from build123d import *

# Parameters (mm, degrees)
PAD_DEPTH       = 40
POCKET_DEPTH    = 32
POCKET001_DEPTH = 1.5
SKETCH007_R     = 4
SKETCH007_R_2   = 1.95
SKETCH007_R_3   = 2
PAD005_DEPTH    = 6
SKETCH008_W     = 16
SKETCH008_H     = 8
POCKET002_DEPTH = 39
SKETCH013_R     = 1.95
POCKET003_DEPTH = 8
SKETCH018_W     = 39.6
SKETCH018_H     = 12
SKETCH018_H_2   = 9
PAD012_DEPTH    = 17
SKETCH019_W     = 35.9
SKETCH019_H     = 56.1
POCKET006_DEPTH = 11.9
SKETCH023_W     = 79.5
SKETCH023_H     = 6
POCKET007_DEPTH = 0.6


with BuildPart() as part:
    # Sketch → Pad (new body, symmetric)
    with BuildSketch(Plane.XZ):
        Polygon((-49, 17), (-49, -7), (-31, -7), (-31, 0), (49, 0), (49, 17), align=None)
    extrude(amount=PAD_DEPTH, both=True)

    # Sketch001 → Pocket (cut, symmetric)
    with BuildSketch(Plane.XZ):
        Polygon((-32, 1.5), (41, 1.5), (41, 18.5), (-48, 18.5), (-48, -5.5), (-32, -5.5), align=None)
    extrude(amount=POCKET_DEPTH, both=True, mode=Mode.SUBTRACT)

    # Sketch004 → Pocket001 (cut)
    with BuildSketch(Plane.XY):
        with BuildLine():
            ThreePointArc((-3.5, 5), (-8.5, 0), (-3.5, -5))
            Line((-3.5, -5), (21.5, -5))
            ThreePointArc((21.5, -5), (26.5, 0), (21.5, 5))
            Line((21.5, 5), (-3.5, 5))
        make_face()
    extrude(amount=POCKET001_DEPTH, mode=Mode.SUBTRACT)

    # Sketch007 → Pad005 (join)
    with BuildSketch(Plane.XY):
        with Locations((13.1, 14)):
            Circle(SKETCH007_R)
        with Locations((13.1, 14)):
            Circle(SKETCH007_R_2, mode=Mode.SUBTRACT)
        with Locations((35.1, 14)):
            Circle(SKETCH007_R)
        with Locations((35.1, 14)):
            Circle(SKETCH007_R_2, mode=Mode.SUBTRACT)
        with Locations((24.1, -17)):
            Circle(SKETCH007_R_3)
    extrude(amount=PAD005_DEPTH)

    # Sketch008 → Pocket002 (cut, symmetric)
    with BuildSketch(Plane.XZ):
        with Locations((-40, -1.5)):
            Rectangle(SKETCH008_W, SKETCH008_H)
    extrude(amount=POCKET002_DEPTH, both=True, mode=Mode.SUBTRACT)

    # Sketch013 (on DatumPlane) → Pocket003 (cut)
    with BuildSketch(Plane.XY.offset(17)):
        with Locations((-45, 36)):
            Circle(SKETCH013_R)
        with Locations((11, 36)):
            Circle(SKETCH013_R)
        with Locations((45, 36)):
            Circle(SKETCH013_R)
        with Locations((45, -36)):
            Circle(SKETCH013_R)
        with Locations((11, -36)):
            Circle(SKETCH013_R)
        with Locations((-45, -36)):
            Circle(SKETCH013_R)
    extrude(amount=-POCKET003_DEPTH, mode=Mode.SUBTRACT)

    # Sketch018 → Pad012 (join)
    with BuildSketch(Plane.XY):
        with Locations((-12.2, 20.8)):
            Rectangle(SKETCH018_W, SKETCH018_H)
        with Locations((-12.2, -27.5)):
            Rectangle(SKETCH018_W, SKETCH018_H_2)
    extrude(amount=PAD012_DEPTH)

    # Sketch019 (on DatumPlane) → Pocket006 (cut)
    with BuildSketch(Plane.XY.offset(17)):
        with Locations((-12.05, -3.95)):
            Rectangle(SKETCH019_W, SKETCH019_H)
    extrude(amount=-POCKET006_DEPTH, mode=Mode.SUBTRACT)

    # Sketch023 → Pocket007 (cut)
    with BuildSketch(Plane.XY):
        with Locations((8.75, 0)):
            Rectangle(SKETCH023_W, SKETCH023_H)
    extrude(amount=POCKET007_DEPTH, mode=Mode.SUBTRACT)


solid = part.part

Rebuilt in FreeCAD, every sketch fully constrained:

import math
import FreeCAD as App
import Part
import Sketcher

doc = App.newDocument("Part")
body = doc.addObject("PartDesign::Body", "Body")

sketch1 = doc.addObject("Sketcher::SketchObject", "Sketch")
body.addObject(sketch1)
sketch1.AttachmentSupport = (doc.XZ_Plane, [""])
sketch1.MapMode = "FlatFace"
sketch1.addGeometry([
    Part.LineSegment(App.Vector(-49, 17, 0), App.Vector(-49, -7, 0)),
    Part.LineSegment(App.Vector(-49, -7, 0), App.Vector(-31, -7, 0)),
    Part.LineSegment(App.Vector(-31, -7, 0), App.Vector(-31, 0, 0)),
    Part.LineSegment(App.Vector(-31, 0, 0), App.Vector(49, 0, 0)),
    Part.LineSegment(App.Vector(49, 0, 0), App.Vector(49, 17, 0)),
    Part.LineSegment(App.Vector(49, 17, 0), App.Vector(-49, 17, 0)),
], False)
sketch1.addConstraint([
    Sketcher.Constraint("Coincident", 0, 2, 1, 1),
    Sketcher.Constraint("Coincident", 1, 2, 2, 1),
    Sketcher.Constraint("Coincident", 2, 2, 3, 1),
    Sketcher.Constraint("Coincident", 3, 2, 4, 1),
    Sketcher.Constraint("Coincident", 4, 2, 5, 1),
    Sketcher.Constraint("Coincident", 5, 2, 0, 1),
    Sketcher.Constraint("Vertical", 0),
    Sketcher.Constraint("Horizontal", 1),
    Sketcher.Constraint("Vertical", 2),
    Sketcher.Constraint("Horizontal", 3),
    Sketcher.Constraint("Vertical", 4),
    Sketcher.Constraint("Horizontal", 5),
    Sketcher.Constraint("PointOnObject", 2, 2, -1),
    Sketcher.Constraint("DistanceX", 1, 1, 1, 2, 18.0),
    Sketcher.Constraint("DistanceX", 3, 1, 3, 2, 80.0),
    Sketcher.Constraint("DistanceY", 0, 2, 0, 1, 24.0),
    Sketcher.Constraint("DistanceY", 2, 1, 2, 2, 7.0),
    Sketcher.Constraint("DistanceX", 0, 2, -1, 1, 49.0),
])
pad1 = doc.addObject("PartDesign::Pad", "Pad")
body.addObject(pad1)
pad1.Profile = sketch1
pad1.Length = 80
pad1.Midplane = True

sketch2 = doc.addObject("Sketcher::SketchObject", "Sketch001")
body.addObject(sketch2)
sketch2.AttachmentSupport = (doc.XZ_Plane, [""])
sketch2.MapMode = "FlatFace"
sketch2.addGeometry([
    Part.LineSegment(App.Vector(-32, 2, 0), App.Vector(41, 2, 0)),
    Part.LineSegment(App.Vector(41, 2, 0), App.Vector(41, 18, 0)),
    Part.LineSegment(App.Vector(41, 18, 0), App.Vector(-48, 18, 0)),
    Part.LineSegment(App.Vector(-48, 18, 0), App.Vector(-48, -6, 0)),
    Part.LineSegment(App.Vector(-48, -6, 0), App.Vector(-32, -6, 0)),
    Part.LineSegment(App.Vector(-32, -6, 0), App.Vector(-32, 2, 0)),
], False)
sketch2.addConstraint([
    Sketcher.Constraint("Coincident", 0, 2, 1, 1),
    Sketcher.Constraint("Coincident", 1, 2, 2, 1),
    Sketcher.Constraint("Coincident", 2, 2, 3, 1),
    Sketcher.Constraint("Coincident", 3, 2, 4, 1),
    Sketcher.Constraint("Coincident", 4, 2, 5, 1),
    Sketcher.Constraint("Coincident", 5, 2, 0, 1),
    Sketcher.Constraint("Horizontal", 0),
    Sketcher.Constraint("Vertical", 1),
    Sketcher.Constraint("Horizontal", 2),
    Sketcher.Constraint("Vertical", 3),
    Sketcher.Constraint("Horizontal", 4),
    Sketcher.Constraint("Vertical", 5),
    Sketcher.Constraint("DistanceX", 0, 1, 0, 2, 73.0),
    Sketcher.Constraint("DistanceX", 2, 2, 2, 1, 89.0),
    Sketcher.Constraint("DistanceY", 1, 1, 1, 2, 17.0),
    Sketcher.Constraint("DistanceY", 3, 2, 3, 1, 24.0),
    Sketcher.Constraint("DistanceX", -1, 1, 0, 2, 41.0),
    Sketcher.Constraint("DistanceY", -1, 1, 0, 2, 1.5),
])
pocket1 = doc.addObject("PartDesign::Pocket", "Pocket")
body.addObject(pocket1)
pocket1.Profile = sketch2
pocket1.Length = 64
pocket1.Midplane = True

sketch3 = doc.addObject("Sketcher::SketchObject", "Sketch002")
body.addObject(sketch3)
sketch3.AttachmentSupport = (doc.XY_Plane, [""])
sketch3.MapMode = "FlatFace"
sketch3.addGeometry([
    Part.ArcOfCircle(Part.Circle(App.Vector(-4, 0, 0), App.Vector(0, 0, 1), 5), math.radians(90), math.radians(270)),
    Part.LineSegment(App.Vector(-4, -5, 0), App.Vector(22, -5, 0)),
    Part.ArcOfCircle(Part.Circle(App.Vector(22, 0, 0), App.Vector(0, 0, 1), 5), math.radians(-90), math.radians(90)),
    Part.LineSegment(App.Vector(22, 5, 0), App.Vector(-4, 5, 0)),
], False)
sketch3.addConstraint([
    Sketcher.Constraint("Tangent", 0, 2, 1, 1),
    Sketcher.Constraint("Tangent", 1, 2, 2, 1),
    Sketcher.Constraint("Tangent", 2, 2, 3, 1),
    Sketcher.Constraint("Tangent", 3, 2, 0, 1),
    Sketcher.Constraint("Horizontal", 1),
    Sketcher.Constraint("Horizontal", 3),
    Sketcher.Constraint("PointOnObject", 0, 3, -1),
    Sketcher.Constraint("Radius", 0, 5.0),
    Sketcher.Constraint("DistanceX", 1, 1, 1, 2, 25.0),
    Sketcher.Constraint("DistanceX", 0, 3, -1, 1, 3.5),
])
pocket2 = doc.addObject("PartDesign::Pocket", "Pocket001")
body.addObject(pocket2)
pocket2.Profile = sketch3
pocket2.Length = 1.5
pocket2.Reversed = True

sketch4 = doc.addObject("Sketcher::SketchObject", "Sketch003")
body.addObject(sketch4)
sketch4.AttachmentSupport = (doc.XY_Plane, [""])
sketch4.MapMode = "FlatFace"
sketch4.addGeometry([
    Part.Circle(App.Vector(13.1, 14, 0), App.Vector(0, 0, 1), 4),
    Part.Circle(App.Vector(13.1, 14, 0), App.Vector(0, 0, 1), 1.9),
    Part.Circle(App.Vector(35.1, 14, 0), App.Vector(0, 0, 1), 4),
    Part.Circle(App.Vector(35.1, 14, 0), App.Vector(0, 0, 1), 1.9),
    Part.Circle(App.Vector(24.1, -17, 0), App.Vector(0, 0, 1), 2),
], False)
sketch4.addConstraint([
    Sketcher.Constraint("Coincident", 1, 3, 0, 3),
    Sketcher.Constraint("Coincident", 3, 3, 2, 3),
    Sketcher.Constraint("Equal", 0, 2),
    Sketcher.Constraint("Equal", 1, 3),
    Sketcher.Constraint("Horizontal", 1, 3, 2, 3),
    Sketcher.Constraint("Diameter", 0, 8.0),
    Sketcher.Constraint("Diameter", 4, 4.0),
    Sketcher.Constraint("Diameter", 1, 3.9),
    Sketcher.Constraint("DistanceY", -1, 1, 0, 3, 14.0),
    Sketcher.Constraint("DistanceY", 4, 3, -1, 1, 17.0),
    Sketcher.Constraint("DistanceX", 0, 3, 2, 3, 22.0),
    Sketcher.Constraint("DistanceX", 4, 3, 2, 3, 11.0),
    Sketcher.Constraint("DistanceX", -1, 1, 0, 3, 13.1),
])
pad2 = doc.addObject("PartDesign::Pad", "Pad001")
body.addObject(pad2)
pad2.Profile = sketch4
pad2.Length = 6

sketch5 = doc.addObject("Sketcher::SketchObject", "Sketch004")
body.addObject(sketch5)
sketch5.AttachmentSupport = (doc.XZ_Plane, [""])
sketch5.MapMode = "FlatFace"
sketch5.addGeometry([
    Part.LineSegment(App.Vector(-48, 2, 0), App.Vector(-48, -6, 0)),
    Part.LineSegment(App.Vector(-48, -6, 0), App.Vector(-32, -6, 0)),
    Part.LineSegment(App.Vector(-32, -6, 0), App.Vector(-32, 2, 0)),
    Part.LineSegment(App.Vector(-32, 2, 0), App.Vector(-48, 2, 0)),
], False)
sketch5.addConstraint([
    Sketcher.Constraint("Coincident", 0, 2, 1, 1),
    Sketcher.Constraint("Coincident", 1, 2, 2, 1),
    Sketcher.Constraint("Coincident", 2, 2, 3, 1),
    Sketcher.Constraint("Coincident", 3, 2, 0, 1),
    Sketcher.Constraint("Vertical", 0),
    Sketcher.Constraint("Horizontal", 1),
    Sketcher.Constraint("Vertical", 2),
    Sketcher.Constraint("Horizontal", 3),
    Sketcher.Constraint("DistanceX", 1, 1, 1, 2, 16.0),
    Sketcher.Constraint("DistanceY", 0, 2, 0, 1, 8.0),
    Sketcher.Constraint("DistanceX", 0, 2, -1, 1, 48.0),
    Sketcher.Constraint("DistanceY", 0, 2, -1, 1, 5.5),
])
pocket3 = doc.addObject("PartDesign::Pocket", "Pocket002")
body.addObject(pocket3)
pocket3.Profile = sketch5
pocket3.Length = 78
pocket3.Midplane = True

sketch6 = doc.addObject("Sketcher::SketchObject", "Sketch005")
body.addObject(sketch6)
sketch6.AttachmentSupport = (doc.XY_Plane, [""])
sketch6.MapMode = "FlatFace"
sketch6.AttachmentOffset = App.Placement(App.Vector(0, 0, 17), App.Rotation())
sketch6.addGeometry([
    Part.Circle(App.Vector(-45, 36, 0), App.Vector(0, 0, 1), 1.9),
    Part.Circle(App.Vector(11, 36, 0), App.Vector(0, 0, 1), 1.9),
    Part.Circle(App.Vector(45, 36, 0), App.Vector(0, 0, 1), 1.9),
    Part.Circle(App.Vector(45, -36, 0), App.Vector(0, 0, 1), 1.9),
    Part.Circle(App.Vector(11, -36, 0), App.Vector(0, 0, 1), 1.9),
    Part.Circle(App.Vector(-45, -36, 0), App.Vector(0, 0, 1), 1.9),
], False)
sketch6.addConstraint([
    Sketcher.Constraint("Equal", 0, 1),
    Sketcher.Constraint("Equal", 1, 2),
    Sketcher.Constraint("Equal", 2, 3),
    Sketcher.Constraint("Equal", 3, 4),
    Sketcher.Constraint("Equal", 4, 5),
    Sketcher.Constraint("Symmetric", 0, 3, 3, 3, -1, 1),
    Sketcher.Constraint("Symmetric", 2, 3, 5, 3, -1, 1),
    Sketcher.Constraint("Symmetric", 0, 3, 2, 3, -2),
    Sketcher.Constraint("Symmetric", 1, 3, 4, 3, -1),
    Sketcher.Constraint("Horizontal", 0, 3, 1, 3),
    Sketcher.Constraint("Diameter", 0, 3.9),
    Sketcher.Constraint("DistanceX", 0, 3, -1, 1, 45.0),
    Sketcher.Constraint("DistanceY", -1, 1, 0, 3, 36.0),
    Sketcher.Constraint("DistanceX", -1, 1, 1, 3, 11.0),
])
pocket4 = doc.addObject("PartDesign::Pocket", "Pocket003")
body.addObject(pocket4)
pocket4.Profile = sketch6
pocket4.Length = 8

sketch7 = doc.addObject("Sketcher::SketchObject", "Sketch006")
body.addObject(sketch7)
sketch7.AttachmentSupport = (doc.XY_Plane, [""])
sketch7.MapMode = "FlatFace"
sketch7.addGeometry([
    Part.LineSegment(App.Vector(-32, 27, 0), App.Vector(-32, 15, 0)),
    Part.LineSegment(App.Vector(-32, 15, 0), App.Vector(8, 15, 0)),
    Part.LineSegment(App.Vector(8, 15, 0), App.Vector(8, 27, 0)),
    Part.LineSegment(App.Vector(8, 27, 0), App.Vector(-32, 27, 0)),
    Part.LineSegment(App.Vector(-32, -23, 0), App.Vector(-32, -32, 0)),
    Part.LineSegment(App.Vector(-32, -32, 0), App.Vector(8, -32, 0)),
    Part.LineSegment(App.Vector(8, -32, 0), App.Vector(8, -23, 0)),
    Part.LineSegment(App.Vector(8, -23, 0), App.Vector(-32, -23, 0)),
], False)
sketch7.addConstraint([
    Sketcher.Constraint("Coincident", 0, 2, 1, 1),
    Sketcher.Constraint("Coincident", 1, 2, 2, 1),
    Sketcher.Constraint("Coincident", 2, 2, 3, 1),
    Sketcher.Constraint("Coincident", 3, 2, 0, 1),
    Sketcher.Constraint("Coincident", 4, 2, 5, 1),
    Sketcher.Constraint("Coincident", 5, 2, 6, 1),
    Sketcher.Constraint("Coincident", 6, 2, 7, 1),
    Sketcher.Constraint("Coincident", 7, 2, 4, 1),
    Sketcher.Constraint("Vertical", 0),
    Sketcher.Constraint("Horizontal", 1),
    Sketcher.Constraint("Vertical", 2),
    Sketcher.Constraint("Horizontal", 3),
    Sketcher.Constraint("Vertical", 4),
    Sketcher.Constraint("Horizontal", 5),
    Sketcher.Constraint("Vertical", 6),
    Sketcher.Constraint("Horizontal", 7),
    Sketcher.Constraint("Vertical", 3, 2, 4, 2),
    Sketcher.Constraint("Vertical", 2, 2, 5, 2),
    Sketcher.Constraint("DistanceY", 0, 2, 0, 1, 12.0),
    Sketcher.Constraint("DistanceY", 4, 2, 4, 1, 9.0),
    Sketcher.Constraint("DistanceX", 1, 1, 1, 2, 39.6),
    Sketcher.Constraint("DistanceX", 0, 2, -1, 1, 32.0),
    Sketcher.Constraint("DistanceY", 4, 2, -1, 1, 32.0),
    Sketcher.Constraint("DistanceY", -1, 1, 0, 2, 14.8),
])
pad3 = doc.addObject("PartDesign::Pad", "Pad002")
body.addObject(pad3)
pad3.Profile = sketch7
pad3.Length = 17

sketch8 = doc.addObject("Sketcher::SketchObject", "Sketch007")
body.addObject(sketch8)
sketch8.AttachmentSupport = (doc.XY_Plane, [""])
sketch8.MapMode = "FlatFace"
sketch8.AttachmentOffset = App.Placement(App.Vector(0, 0, 17), App.Rotation())
sketch8.addGeometry([
    Part.LineSegment(App.Vector(-30, 24, 0), App.Vector(-30, -32, 0)),
    Part.LineSegment(App.Vector(-30, -32, 0), App.Vector(6, -32, 0)),
    Part.LineSegment(App.Vector(6, -32, 0), App.Vector(6, 24, 0)),
    Part.LineSegment(App.Vector(6, 24, 0), App.Vector(-30, 24, 0)),
], False)
sketch8.addConstraint([
    Sketcher.Constraint("Coincident", 0, 2, 1, 1),
    Sketcher.Constraint("Coincident", 1, 2, 2, 1),
    Sketcher.Constraint("Coincident", 2, 2, 3, 1),
    Sketcher.Constraint("Coincident", 3, 2, 0, 1),
    Sketcher.Constraint("Vertical", 0),
    Sketcher.Constraint("Horizontal", 1),
    Sketcher.Constraint("Vertical", 2),
    Sketcher.Constraint("Horizontal", 3),
    Sketcher.Constraint("DistanceX", 1, 1, 1, 2, 35.9),
    Sketcher.Constraint("DistanceY", 0, 2, 0, 1, 56.1),
    Sketcher.Constraint("DistanceX", 0, 2, -1, 1, 30.0),
    Sketcher.Constraint("DistanceY", 0, 2, -1, 1, 32.0),
])
pocket5 = doc.addObject("PartDesign::Pocket", "Pocket004")
body.addObject(pocket5)
pocket5.Profile = sketch8
pocket5.Length = 11.9

sketch9 = doc.addObject("Sketcher::SketchObject", "Sketch008")
body.addObject(sketch9)
sketch9.AttachmentSupport = (doc.XY_Plane, [""])
sketch9.MapMode = "FlatFace"
sketch9.addGeometry([
    Part.LineSegment(App.Vector(-31, 3, 0), App.Vector(-31, -3, 0)),
    Part.LineSegment(App.Vector(-31, -3, 0), App.Vector(48, -3, 0)),
    Part.LineSegment(App.Vector(48, -3, 0), App.Vector(48, 3, 0)),
    Part.LineSegment(App.Vector(48, 3, 0), App.Vector(-31, 3, 0)),
], False)
sketch9.addConstraint([
    Sketcher.Constraint("Coincident", 0, 2, 1, 1),
    Sketcher.Constraint("Coincident", 1, 2, 2, 1),
    Sketcher.Constraint("Coincident", 2, 2, 3, 1),
    Sketcher.Constraint("Coincident", 3, 2, 0, 1),
    Sketcher.Constraint("Vertical", 0),
    Sketcher.Constraint("Horizontal", 1),
    Sketcher.Constraint("Vertical", 2),
    Sketcher.Constraint("Horizontal", 3),
    Sketcher.Constraint("DistanceY", 0, 2, 0, 1, 6.0),
    Sketcher.Constraint("DistanceX", 1, 1, 1, 2, 79.5),
    Sketcher.Constraint("DistanceX", 0, 2, -1, 1, 31.0),
    Sketcher.Constraint("DistanceY", 0, 2, -1, 1, 3.0),
])
pocket6 = doc.addObject("PartDesign::Pocket", "Pocket005")
body.addObject(pocket6)
pocket6.Profile = sketch9
pocket6.Length = 0.6
pocket6.Reversed = True

doc.recompute()
